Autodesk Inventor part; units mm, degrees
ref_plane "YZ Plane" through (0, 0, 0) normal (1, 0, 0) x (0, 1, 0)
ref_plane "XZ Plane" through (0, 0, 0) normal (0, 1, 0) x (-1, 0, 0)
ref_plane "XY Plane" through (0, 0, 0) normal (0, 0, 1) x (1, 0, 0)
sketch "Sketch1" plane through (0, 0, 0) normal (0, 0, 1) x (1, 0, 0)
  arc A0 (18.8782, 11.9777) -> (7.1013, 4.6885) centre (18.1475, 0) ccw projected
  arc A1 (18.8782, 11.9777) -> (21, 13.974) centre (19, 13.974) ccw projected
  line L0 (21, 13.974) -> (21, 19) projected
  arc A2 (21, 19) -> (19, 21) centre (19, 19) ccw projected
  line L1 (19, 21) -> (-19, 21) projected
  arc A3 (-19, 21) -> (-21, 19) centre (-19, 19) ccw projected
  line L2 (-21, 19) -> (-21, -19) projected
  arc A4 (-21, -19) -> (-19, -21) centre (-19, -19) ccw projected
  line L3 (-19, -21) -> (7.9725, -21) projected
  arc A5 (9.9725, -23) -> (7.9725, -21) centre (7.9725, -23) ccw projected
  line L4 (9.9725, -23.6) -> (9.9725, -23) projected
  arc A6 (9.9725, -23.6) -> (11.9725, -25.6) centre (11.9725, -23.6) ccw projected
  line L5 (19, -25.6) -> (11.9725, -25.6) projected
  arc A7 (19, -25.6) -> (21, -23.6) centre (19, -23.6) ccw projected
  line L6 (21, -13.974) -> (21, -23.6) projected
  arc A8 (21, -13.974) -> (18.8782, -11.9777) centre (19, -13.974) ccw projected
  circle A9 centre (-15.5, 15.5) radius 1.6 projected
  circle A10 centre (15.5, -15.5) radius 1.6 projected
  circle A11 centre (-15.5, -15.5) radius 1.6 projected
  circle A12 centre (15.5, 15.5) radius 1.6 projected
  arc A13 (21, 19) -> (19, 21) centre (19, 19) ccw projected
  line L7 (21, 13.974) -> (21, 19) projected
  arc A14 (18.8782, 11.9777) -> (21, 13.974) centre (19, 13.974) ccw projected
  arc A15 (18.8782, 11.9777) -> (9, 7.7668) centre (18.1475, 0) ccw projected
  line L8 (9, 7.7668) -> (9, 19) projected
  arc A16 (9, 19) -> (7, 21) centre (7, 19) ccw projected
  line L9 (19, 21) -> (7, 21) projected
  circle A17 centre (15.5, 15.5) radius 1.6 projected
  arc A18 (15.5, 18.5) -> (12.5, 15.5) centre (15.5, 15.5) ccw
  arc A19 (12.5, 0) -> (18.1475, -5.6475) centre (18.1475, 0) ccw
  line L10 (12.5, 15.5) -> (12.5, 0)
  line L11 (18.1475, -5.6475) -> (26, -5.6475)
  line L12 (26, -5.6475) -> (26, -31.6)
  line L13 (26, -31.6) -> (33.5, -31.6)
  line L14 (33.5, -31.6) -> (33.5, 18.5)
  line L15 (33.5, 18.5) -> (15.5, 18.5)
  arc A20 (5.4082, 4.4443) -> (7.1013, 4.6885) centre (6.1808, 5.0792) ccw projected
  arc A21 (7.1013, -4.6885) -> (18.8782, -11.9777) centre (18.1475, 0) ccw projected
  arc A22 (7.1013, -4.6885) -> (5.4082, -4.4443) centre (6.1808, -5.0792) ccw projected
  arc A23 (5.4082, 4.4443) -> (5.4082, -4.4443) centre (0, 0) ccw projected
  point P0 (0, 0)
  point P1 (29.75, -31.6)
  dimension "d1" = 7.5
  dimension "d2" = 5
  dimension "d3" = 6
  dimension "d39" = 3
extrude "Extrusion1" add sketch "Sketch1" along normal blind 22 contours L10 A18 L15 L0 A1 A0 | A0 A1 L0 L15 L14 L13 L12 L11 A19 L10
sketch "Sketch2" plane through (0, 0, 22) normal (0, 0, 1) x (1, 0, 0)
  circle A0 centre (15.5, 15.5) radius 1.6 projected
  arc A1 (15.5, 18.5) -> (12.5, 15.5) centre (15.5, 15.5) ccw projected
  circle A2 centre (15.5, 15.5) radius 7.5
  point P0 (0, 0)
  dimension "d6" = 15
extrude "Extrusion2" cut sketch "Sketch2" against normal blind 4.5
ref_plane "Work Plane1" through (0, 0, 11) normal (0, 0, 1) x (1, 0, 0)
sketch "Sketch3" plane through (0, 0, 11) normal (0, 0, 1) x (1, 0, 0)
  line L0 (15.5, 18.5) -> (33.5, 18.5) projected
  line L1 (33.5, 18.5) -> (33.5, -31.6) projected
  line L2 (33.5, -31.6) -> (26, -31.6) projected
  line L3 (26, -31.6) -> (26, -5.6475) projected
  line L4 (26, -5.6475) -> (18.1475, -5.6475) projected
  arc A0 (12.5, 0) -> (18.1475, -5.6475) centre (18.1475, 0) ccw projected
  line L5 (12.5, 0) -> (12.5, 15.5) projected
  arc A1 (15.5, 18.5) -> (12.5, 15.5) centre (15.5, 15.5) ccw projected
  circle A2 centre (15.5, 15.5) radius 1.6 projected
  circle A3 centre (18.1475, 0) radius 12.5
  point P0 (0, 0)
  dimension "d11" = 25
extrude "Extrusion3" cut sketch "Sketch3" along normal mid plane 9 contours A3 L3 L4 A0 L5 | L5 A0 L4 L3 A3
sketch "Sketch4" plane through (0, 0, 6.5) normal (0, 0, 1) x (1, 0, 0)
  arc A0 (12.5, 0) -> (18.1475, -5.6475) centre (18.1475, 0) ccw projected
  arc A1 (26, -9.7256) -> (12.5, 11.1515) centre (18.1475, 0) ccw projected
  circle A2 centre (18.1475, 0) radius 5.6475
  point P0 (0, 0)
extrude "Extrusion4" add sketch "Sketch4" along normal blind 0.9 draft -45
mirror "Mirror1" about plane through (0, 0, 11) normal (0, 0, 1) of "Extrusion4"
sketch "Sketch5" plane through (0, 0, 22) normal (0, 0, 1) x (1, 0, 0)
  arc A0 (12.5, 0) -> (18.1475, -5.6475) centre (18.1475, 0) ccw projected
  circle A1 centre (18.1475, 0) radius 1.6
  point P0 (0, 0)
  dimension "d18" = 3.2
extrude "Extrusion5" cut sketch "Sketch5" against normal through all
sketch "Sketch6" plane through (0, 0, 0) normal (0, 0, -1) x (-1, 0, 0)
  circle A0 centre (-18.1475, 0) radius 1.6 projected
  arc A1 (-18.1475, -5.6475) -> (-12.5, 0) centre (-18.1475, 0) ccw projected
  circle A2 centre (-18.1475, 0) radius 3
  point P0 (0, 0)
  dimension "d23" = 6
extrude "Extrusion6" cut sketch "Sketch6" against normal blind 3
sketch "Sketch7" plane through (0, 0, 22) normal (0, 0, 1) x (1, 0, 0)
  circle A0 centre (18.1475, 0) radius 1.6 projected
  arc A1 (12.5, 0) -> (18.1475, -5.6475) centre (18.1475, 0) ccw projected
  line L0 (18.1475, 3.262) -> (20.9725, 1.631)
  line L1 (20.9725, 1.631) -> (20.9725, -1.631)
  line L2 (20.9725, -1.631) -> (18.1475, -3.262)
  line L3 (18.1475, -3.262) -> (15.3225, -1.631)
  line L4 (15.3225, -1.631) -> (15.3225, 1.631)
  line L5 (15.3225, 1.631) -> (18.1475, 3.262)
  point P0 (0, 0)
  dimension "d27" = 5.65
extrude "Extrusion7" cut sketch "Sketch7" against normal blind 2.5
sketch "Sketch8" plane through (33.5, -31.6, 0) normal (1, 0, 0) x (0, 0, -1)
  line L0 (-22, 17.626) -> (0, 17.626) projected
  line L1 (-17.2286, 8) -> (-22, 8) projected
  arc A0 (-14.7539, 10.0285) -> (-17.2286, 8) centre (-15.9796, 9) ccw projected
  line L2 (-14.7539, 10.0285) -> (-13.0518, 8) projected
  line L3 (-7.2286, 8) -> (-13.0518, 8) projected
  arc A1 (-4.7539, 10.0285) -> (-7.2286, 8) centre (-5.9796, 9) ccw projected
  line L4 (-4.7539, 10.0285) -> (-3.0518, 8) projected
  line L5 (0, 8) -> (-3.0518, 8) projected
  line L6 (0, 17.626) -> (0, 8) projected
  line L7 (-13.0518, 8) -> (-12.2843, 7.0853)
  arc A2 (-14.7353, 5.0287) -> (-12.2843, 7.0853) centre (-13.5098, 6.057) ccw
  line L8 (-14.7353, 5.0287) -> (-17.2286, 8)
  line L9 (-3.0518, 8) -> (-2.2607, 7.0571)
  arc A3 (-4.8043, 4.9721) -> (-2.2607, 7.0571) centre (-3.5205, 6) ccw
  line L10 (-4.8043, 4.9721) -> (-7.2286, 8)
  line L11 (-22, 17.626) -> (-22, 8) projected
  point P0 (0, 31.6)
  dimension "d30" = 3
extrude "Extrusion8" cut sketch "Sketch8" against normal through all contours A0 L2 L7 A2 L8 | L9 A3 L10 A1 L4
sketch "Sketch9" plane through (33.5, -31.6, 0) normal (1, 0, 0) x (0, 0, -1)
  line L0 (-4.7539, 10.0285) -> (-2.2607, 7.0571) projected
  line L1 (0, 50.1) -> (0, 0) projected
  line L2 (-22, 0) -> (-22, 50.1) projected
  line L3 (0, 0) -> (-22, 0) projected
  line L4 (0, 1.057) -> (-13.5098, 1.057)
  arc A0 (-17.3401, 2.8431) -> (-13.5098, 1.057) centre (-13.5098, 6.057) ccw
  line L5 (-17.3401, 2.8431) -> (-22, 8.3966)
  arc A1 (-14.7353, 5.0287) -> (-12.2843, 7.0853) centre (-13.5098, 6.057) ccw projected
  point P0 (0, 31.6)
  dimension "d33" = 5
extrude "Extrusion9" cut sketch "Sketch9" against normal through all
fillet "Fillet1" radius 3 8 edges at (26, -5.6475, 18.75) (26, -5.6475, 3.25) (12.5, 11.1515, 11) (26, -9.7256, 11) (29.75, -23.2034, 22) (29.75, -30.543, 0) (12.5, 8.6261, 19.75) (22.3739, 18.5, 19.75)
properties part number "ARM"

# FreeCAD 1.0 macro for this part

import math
import FreeCAD as App
import Part
import Sketcher
from FreeCAD import Vector
Q = App.Units.Quantity


def edges_at(feature, points):
    """Names of the edges that pass closest to the given points."""
    edges = feature.Shape.Edges
    near = lambda p: min(range(len(edges)), key=lambda i: edges[i].distToShape(Part.Vertex(*p))[0])
    return sorted({f"Edge{near(p) + 1}" for p in points})


def add_polygon(sketch, points):
    """Adds a closed chain of lines whose ends are joined by coincident constraints."""
    first, n = sketch.GeometryCount, len(points)
    for a, b in zip(points, points[1:] + points[:1]):
        sketch.addGeometry(Part.LineSegment(App.Vector(*a, 0), App.Vector(*b, 0)), False)
    for i in range(n):
        sketch.addConstraint(Sketcher.Constraint("Coincident", first + i, 2, first + (i + 1) % n, 1))

doc = App.newDocument("Part")
body = doc.addObject("PartDesign::Body", "Body")

# Sketch on XY plane
sketch1 = body.newObject("Sketcher::SketchObject", "Sketch")
sketch1.AttachmentSupport = (doc.getObject("XY_Plane"), [""])
sketch1.MapMode = "FlatFace"
sketch1.addGeometry([
    Part.LineSegment(Vector(12.5, 15.5, 0), Vector(12.5, 0, 0)),  # 0
    Part.ArcOfCircle(Part.Circle(Vector(18.1, 0, 0), Vector(0, 0, 1), 5.6), math.radians(180), math.radians(270)),  # 1
    Part.LineSegment(Vector(18.1, -5.6, 0), Vector(26, -5.6, 0)),  # 2
    Part.LineSegment(Vector(26, -5.6, 0), Vector(26, -31.6, 0)),  # 3
    Part.LineSegment(Vector(26, -31.6, 0), Vector(33.5, -31.6, 0)),  # 4
    Part.LineSegment(Vector(33.5, -31.6, 0), Vector(33.5, 18.5, 0)),  # 5
    Part.LineSegment(Vector(33.5, 18.5, 0), Vector(15.5, 18.5, 0)),  # 6
    Part.ArcOfCircle(Part.Circle(Vector(15.5, 15.5, 0), Vector(0, 0, 1), 3), math.radians(90), math.radians(180)),  # 7
    Part.Circle(Vector(15.5, 15.5, 0), Vector(0, 0, 1), 1.6),  # 8
], False)
sketch1.addConstraint([
    Sketcher.Constraint("Tangent", 0, 2, 1, 1),
    Sketcher.Constraint("Tangent", 1, 2, 2, 1),
    Sketcher.Constraint("Coincident", 2, 2, 3, 1),
    Sketcher.Constraint("Coincident", 3, 2, 4, 1),
    Sketcher.Constraint("Coincident", 4, 2, 5, 1),
    Sketcher.Constraint("Coincident", 5, 2, 6, 1),
    Sketcher.Constraint("Tangent", 6, 2, 7, 1),
    Sketcher.Constraint("Tangent", 7, 2, 0, 1),
    Sketcher.Constraint("Vertical", 0),
    Sketcher.Constraint("Horizontal", 2),
    Sketcher.Constraint("Vertical", 3),
    Sketcher.Constraint("Horizontal", 4),
    Sketcher.Constraint("Vertical", 5),
    Sketcher.Constraint("Horizontal", 6),
    Sketcher.Constraint("Coincident", 8, 3, 7, 3),
    Sketcher.Constraint("PointOnObject", 1, 3, -1),
    Sketcher.Constraint("Radius", 7, 3.0),
    Sketcher.Constraint("DistanceX", 4, 1, 4, 2, 7.5),
    Sketcher.Constraint("Diameter", 8, 3.2),
    Sketcher.Constraint("DistanceX", 6, 2, 6, 1, 18.0),
    Sketcher.Constraint("DistanceY", 0, 2, 0, 1, 15.5),
    Sketcher.Constraint("DistanceY", 5, 1, 5, 2, 50.1),
    Sketcher.Constraint("DistanceX", -1, 1, 2, 2, 26.0),
    Sketcher.Constraint("Radius", 1, 5.6475),
])
pad1 = body.newObject("PartDesign::Pad", "Pad")
pad1.Profile = sketch1
pad1.Length = 22

# Sketch on XY plane
sketch2 = body.newObject("Sketcher::SketchObject", "Sketch001")
sketch2.AttachmentSupport = (doc.getObject("XY_Plane"), [""])
sketch2.MapMode = "FlatFace"
sketch2.AttachmentOffset = App.Placement(Vector(0, 0, 22), App.Rotation())
sketch2.addGeometry([
    Part.Circle(Vector(15.5, 15.5, 0), Vector(0, 0, 1), 7.5),
    Part.Circle(Vector(15.5, 15.5, 0), Vector(0, 0, 1), 1.6),
], False)
sketch2.addConstraint([
    Sketcher.Constraint("Coincident", 1, 3, 0, 3),
    Sketcher.Constraint("Diameter", 0, 15.0),
    Sketcher.Constraint("Diameter", 1, 3.2),
    Sketcher.Constraint("DistanceX", -1, 1, 0, 3, 15.5),
    Sketcher.Constraint("DistanceY", -1, 1, 0, 3, 15.5),
])
pocket1 = body.newObject("PartDesign::Pocket", "Pocket")
pocket1.Profile = sketch2
pocket1.Length = 4.5

# Sketch on XY plane
sketch3 = body.newObject("Sketcher::SketchObject", "Sketch002")
sketch3.AttachmentSupport = (doc.getObject("XY_Plane"), [""])
sketch3.MapMode = "FlatFace"
sketch3.AttachmentOffset = App.Placement(Vector(0, 0, 11), App.Rotation())
sketch3.addGeometry(Part.Circle(Vector(18, 0, 0), Vector(0, 0, 1), 12), False)
sketch3.addConstraint([
    Sketcher.Constraint("PointOnObject", 0, 3, -1),
    Sketcher.Constraint("Diameter", 0, 25.0),
    Sketcher.Constraint("DistanceX", -1, 1, 0, 3, 18.1475),
])
pocket2 = body.newObject("PartDesign::Pocket", "Pocket001")
pocket2.Profile = sketch3
pocket2.Length = 9
pocket2.Midplane = True

# Sketch on XY plane
sketch4 = body.newObject("Sketcher::SketchObject", "Sketch003")
sketch4.AttachmentSupport = (doc.getObject("XY_Plane"), [""])
sketch4.MapMode = "FlatFace"
sketch4.AttachmentOffset = App.Placement(Vector(0, 0, 6.5), App.Rotation())
sketch4.addGeometry(Part.Circle(Vector(18, 0, 0), Vector(0, 0, 1), 6), False)
sketch4.addConstraint([
    Sketcher.Constraint("PointOnObject", 0, 3, -1),
    Sketcher.Constraint("Diameter", 0, 11.295),
    Sketcher.Constraint("DistanceX", -1, 1, 0, 3, 18.1475),
])
pad2 = body.newObject("PartDesign::Pad", "Pad001")
pad2.Profile = sketch4
pad2.Length = 0.9
pad2.TaperAngle = -45
doc.recompute()

datumplane = body.newObject("PartDesign::Plane", "DatumPlane")
datumplane.AttachmentSupport = (doc.getObject("XY_Plane"), [""])
datumplane.MapMode = "FlatFace"
datumplane.AttachmentOffset = App.Placement(Vector(0, 0, 11), App.Rotation())
mirrored = body.newObject("PartDesign::Mirrored", "Mirrored")
mirrored.Originals = [pad2]
mirrored.MirrorPlane = (datumplane, [""])
body.Tip = mirrored

# Sketch on XY plane
sketch5 = body.newObject("Sketcher::SketchObject", "Sketch004")
sketch5.AttachmentSupport = (doc.getObject("XY_Plane"), [""])
sketch5.MapMode = "FlatFace"
sketch5.AttachmentOffset = App.Placement(Vector(0, 0, 22), App.Rotation())
sketch5.addGeometry(Part.Circle(Vector(18.1, 0, 0), Vector(0, 0, 1), 1.6), False)
sketch5.addConstraint([
    Sketcher.Constraint("PointOnObject", 0, 3, -1),
    Sketcher.Constraint("Diameter", 0, 3.2),
    Sketcher.Constraint("DistanceX", -1, 1, 0, 3, 18.1475),
])
pocket3 = body.newObject("PartDesign::Pocket", "Pocket002")
pocket3.Profile = sketch5
pocket3.Type = "ThroughAll"

# Sketch on XY plane
sketch6 = body.newObject("Sketcher::SketchObject", "Sketch005")
sketch6.AttachmentSupport = (doc.getObject("XY_Plane"), [""])
sketch6.MapMode = "FlatFace"
sketch6.addGeometry([
    Part.Circle(Vector(18.1, 0, 0), Vector(0, 0, 1), 3),
    Part.Circle(Vector(18.1, 0, 0), Vector(0, 0, 1), 1.6),
], False)
sketch6.addConstraint([
    Sketcher.Constraint("Coincident", 1, 3, 0, 3),
    Sketcher.Constraint("PointOnObject", 0, 3, -1),
    Sketcher.Constraint("Diameter", 0, 6.0),
    Sketcher.Constraint("Diameter", 1, 3.2),
    Sketcher.Constraint("DistanceX", -1, 1, 0, 3, 18.1475),
])
pocket4 = body.newObject("PartDesign::Pocket", "Pocket003")
pocket4.Profile = sketch6
pocket4.Length = 3
pocket4.Reversed = True

# Sketch on XY plane
sketch7 = body.newObject("Sketcher::SketchObject", "Sketch006")
sketch7.AttachmentSupport = (doc.getObject("XY_Plane"), [""])
sketch7.MapMode = "FlatFace"
sketch7.AttachmentOffset = App.Placement(Vector(0, 0, 22), App.Rotation())
add_polygon(sketch7, [(21, 1.6), (18.1, 3.3), (15.3, 1.6), (15.3, -1.6), (18.1, -3.3), (21, -1.6)])  # lines 0-5
sketch7.addGeometry(Part.Circle(Vector(18.1, 0, 0), Vector(0, 0, 1), 1.6), False)  # 6
sketch7.addConstraint([
    Sketcher.Constraint("Vertical", 2),
    Sketcher.Constraint("Vertical", 5),
    Sketcher.Constraint("Symmetric", 0, 2, 3, 2, -1),
    Sketcher.Constraint("PointOnObject", 6, 3, -1),
    Sketcher.Constraint("Parallel", 0, 3),
    Sketcher.Constraint("Parallel", 1, 4),
    Sketcher.Constraint("Horizontal", 2, 2, 4, 2),
    Sketcher.Constraint("Horizontal", 1, 2, 5, 2),
    Sketcher.Constraint("Vertical", 6, 3, 0, 2),
    Sketcher.Constraint("Diameter", 6, 3.2),
    Sketcher.Constraint("Angle", 0, Q("150.0002 deg")),
    Sketcher.Constraint("DistanceX", 2, 2, 4, 2, 5.65),
    Sketcher.Constraint("DistanceY", 2, 2, 2, 1, 3.262),
    Sketcher.Constraint("DistanceX", -1, 1, 6, 3, 18.1475),
])
pocket5 = body.newObject("PartDesign::Pocket", "Pocket004")
pocket5.Profile = sketch7
pocket5.Length = 2.5

# Sketch on YZ plane
sketch8 = body.newObject("Sketcher::SketchObject", "Sketch007")
sketch8.AttachmentSupport = (doc.getObject("YZ_Plane"), [""])
sketch8.MapMode = "FlatFace"
sketch8.AttachmentOffset = App.Placement(Vector(0, 0, 33.5), App.Rotation())
sketch8.addGeometry([
    Part.ArcOfCircle(Part.Circle(Vector(-22.6, 16, 0), Vector(0, 0, 1), 1.6), math.radians(-50), math.radians(129)),  # 0
    Part.LineSegment(Vector(-23.6, 17.2, 0), Vector(-26.6, 14.7, 0)),  # 1
    Part.ArcOfCircle(Part.Circle(Vector(-25.5, 13.5, 0), Vector(0, 0, 1), 1.6), math.radians(130), math.radians(310)),  # 2
    Part.LineSegment(Vector(-24.5, 12.3, 0), Vector(-23.6, 13.1, 0)),  # 3
    Part.LineSegment(Vector(-23.6, 13.1, 0), Vector(-21.6, 14.8, 0)),  # 4
    Part.LineSegment(Vector(-24.5, 2.3, 0), Vector(-23.6, 3.1, 0)),  # 5
    Part.LineSegment(Vector(-23.6, 3.1, 0), Vector(-21.6, 4.8, 0)),  # 6
    Part.ArcOfCircle(Part.Circle(Vector(-22.6, 6, 0), Vector(0, 0, 1), 1.6), math.radians(-50), math.radians(129)),  # 7
    Part.LineSegment(Vector(-23.6, 7.2, 0), Vector(-26.6, 4.8, 0)),  # 8
    Part.ArcOfCircle(Part.Circle(Vector(-25.6, 3.5, 0), Vector(0, 0, 1), 1.6), math.radians(129), math.radians(310)),  # 9
], False)
sketch8.addConstraint([
    Sketcher.Constraint("Coincident", 0, 2, 1, 1),
    Sketcher.Constraint("Tangent", 1, 2, 2, 1),
    Sketcher.Constraint("Tangent", 2, 2, 3, 1),
    Sketcher.Constraint("Coincident", 3, 2, 4, 1),
    Sketcher.Constraint("Tangent", 4, 2, 0, 1),
    Sketcher.Constraint("Coincident", 5, 2, 6, 1),
    Sketcher.Constraint("Tangent", 6, 2, 7, 1),
    Sketcher.Constraint("Tangent", 7, 2, 8, 1),
    Sketcher.Constraint("Tangent", 8, 2, 9, 1),
    Sketcher.Constraint("Tangent", 9, 2, 5, 1),
    Sketcher.Constraint("Equal", 0, 7),
    Sketcher.Constraint("Parallel", 1, 3),
    Sketcher.Constraint("Parallel", 3, 4),
    Sketcher.Constraint("Parallel", 4, 5),
    Sketcher.Constraint("Parallel", 5, 6),
    Sketcher.Constraint("Vertical", 0, 3, 7, 3),
    Sketcher.Constraint("Vertical", 0, 2, 3, 2),
    Sketcher.Constraint("Vertical", 3, 2, 5, 2),
    Sketcher.Constraint("Vertical", 5, 2, 7, 2),
    Sketcher.Constraint("Equal", 1, 8),
    Sketcher.Constraint("DistanceX", 9, 3, 7, 3, 3.0),
    Sketcher.Constraint("Radius", 0, 1.6),
    Sketcher.Constraint("Angle", 1, Q("-139.999 deg")),
    Sketcher.Constraint("DistanceY", 7, 3, 0, 3, 10.0),
    Sketcher.Constraint("DistanceX", 0, 2, 0, 3, 1.0),
    Sketcher.Constraint("DistanceX", 0, 3, -1, 1, 22.6),
    Sketcher.Constraint("DistanceY", -1, 1, 4, 2, 14.754),
])
pocket6 = body.newObject("PartDesign::Pocket", "Pocket005")
pocket6.Profile = sketch8
pocket6.Type = "ThroughAll"

# Sketch on YZ plane
sketch9 = body.newObject("Sketcher::SketchObject", "Sketch008")
sketch9.AttachmentSupport = (doc.getObject("YZ_Plane"), [""])
sketch9.MapMode = "FlatFace"
sketch9.AttachmentOffset = App.Placement(Vector(0, 0, 33.5), App.Rotation())
sketch9.addGeometry([
    Part.LineSegment(Vector(-31.6, 0, 0), Vector(-30.5, 0, 0)),  # 0
    Part.LineSegment(Vector(-30.5, 0, 0), Vector(-30.5, 13.5, 0)),  # 1
    Part.ArcOfCircle(Part.Circle(Vector(-25.5, 13.5, 0), Vector(0, 0, 1), 5), math.radians(130), math.radians(180)),  # 2
    Part.LineSegment(Vector(-28.8, 17.3, 0), Vector(-23.2, 22, 0)),  # 3
    Part.LineSegment(Vector(-23.2, 22, 0), Vector(-31.6, 22, 0)),  # 4
    Part.LineSegment(Vector(-31.6, 22, 0), Vector(-31.6, 0, 0)),  # 5
], False)
sketch9.addConstraint([
    Sketcher.Constraint("Coincident", 0, 2, 1, 1),
    Sketcher.Constraint("Tangent", 1, 2, 2, 2),
    Sketcher.Constraint("Tangent", 2, 1, 3, 1),
    Sketcher.Constraint("Coincident", 3, 2, 4, 1),
    Sketcher.Constraint("Coincident", 4, 2, 5, 1),
    Sketcher.Constraint("Coincident", 5, 2, 0, 1),
    Sketcher.Constraint("Horizontal", 0),
    Sketcher.Constraint("Vertical", 1),
    Sketcher.Constraint("Horizontal", 4),
    Sketcher.Constraint("Vertical", 5),
    Sketcher.Constraint("PointOnObject", 0, 2, -1),
    Sketcher.Constraint("Radius", 2, 5.0),
    Sketcher.Constraint("DistanceY", 5, 2, 5, 1, 22.0),
    Sketcher.Constraint("Angle", 3, Q("39.9998 deg")),
    Sketcher.Constraint("DistanceX", 4, 2, -1, 1, 31.6),
    Sketcher.Constraint("DistanceX", 0, 1, 0, 2, 1.057),
    Sketcher.Constraint("DistanceY", -1, 1, 2, 1, 17.34),
])
pocket7 = body.newObject("PartDesign::Pocket", "Pocket006")
pocket7.Profile = sketch9
pocket7.Type = "ThroughAll"
doc.recompute()

fillet = body.newObject("PartDesign::Fillet", "Fillet")
fillet.Base = (pocket7, edges_at(pocket7, [
    (26, -5.647, 18.75),
    (26, -5.647, 3.25),
    (12.5, 11.152, 11),
    (26, -9.726, 11),
    (29.75, -23.203, 22),
    (29.75, -30.543, 0),
    (12.5, 8.626, 19.75),
    (22.374, 18.5, 19.75),
]))
fillet.Radius = 3

doc.recompute()
